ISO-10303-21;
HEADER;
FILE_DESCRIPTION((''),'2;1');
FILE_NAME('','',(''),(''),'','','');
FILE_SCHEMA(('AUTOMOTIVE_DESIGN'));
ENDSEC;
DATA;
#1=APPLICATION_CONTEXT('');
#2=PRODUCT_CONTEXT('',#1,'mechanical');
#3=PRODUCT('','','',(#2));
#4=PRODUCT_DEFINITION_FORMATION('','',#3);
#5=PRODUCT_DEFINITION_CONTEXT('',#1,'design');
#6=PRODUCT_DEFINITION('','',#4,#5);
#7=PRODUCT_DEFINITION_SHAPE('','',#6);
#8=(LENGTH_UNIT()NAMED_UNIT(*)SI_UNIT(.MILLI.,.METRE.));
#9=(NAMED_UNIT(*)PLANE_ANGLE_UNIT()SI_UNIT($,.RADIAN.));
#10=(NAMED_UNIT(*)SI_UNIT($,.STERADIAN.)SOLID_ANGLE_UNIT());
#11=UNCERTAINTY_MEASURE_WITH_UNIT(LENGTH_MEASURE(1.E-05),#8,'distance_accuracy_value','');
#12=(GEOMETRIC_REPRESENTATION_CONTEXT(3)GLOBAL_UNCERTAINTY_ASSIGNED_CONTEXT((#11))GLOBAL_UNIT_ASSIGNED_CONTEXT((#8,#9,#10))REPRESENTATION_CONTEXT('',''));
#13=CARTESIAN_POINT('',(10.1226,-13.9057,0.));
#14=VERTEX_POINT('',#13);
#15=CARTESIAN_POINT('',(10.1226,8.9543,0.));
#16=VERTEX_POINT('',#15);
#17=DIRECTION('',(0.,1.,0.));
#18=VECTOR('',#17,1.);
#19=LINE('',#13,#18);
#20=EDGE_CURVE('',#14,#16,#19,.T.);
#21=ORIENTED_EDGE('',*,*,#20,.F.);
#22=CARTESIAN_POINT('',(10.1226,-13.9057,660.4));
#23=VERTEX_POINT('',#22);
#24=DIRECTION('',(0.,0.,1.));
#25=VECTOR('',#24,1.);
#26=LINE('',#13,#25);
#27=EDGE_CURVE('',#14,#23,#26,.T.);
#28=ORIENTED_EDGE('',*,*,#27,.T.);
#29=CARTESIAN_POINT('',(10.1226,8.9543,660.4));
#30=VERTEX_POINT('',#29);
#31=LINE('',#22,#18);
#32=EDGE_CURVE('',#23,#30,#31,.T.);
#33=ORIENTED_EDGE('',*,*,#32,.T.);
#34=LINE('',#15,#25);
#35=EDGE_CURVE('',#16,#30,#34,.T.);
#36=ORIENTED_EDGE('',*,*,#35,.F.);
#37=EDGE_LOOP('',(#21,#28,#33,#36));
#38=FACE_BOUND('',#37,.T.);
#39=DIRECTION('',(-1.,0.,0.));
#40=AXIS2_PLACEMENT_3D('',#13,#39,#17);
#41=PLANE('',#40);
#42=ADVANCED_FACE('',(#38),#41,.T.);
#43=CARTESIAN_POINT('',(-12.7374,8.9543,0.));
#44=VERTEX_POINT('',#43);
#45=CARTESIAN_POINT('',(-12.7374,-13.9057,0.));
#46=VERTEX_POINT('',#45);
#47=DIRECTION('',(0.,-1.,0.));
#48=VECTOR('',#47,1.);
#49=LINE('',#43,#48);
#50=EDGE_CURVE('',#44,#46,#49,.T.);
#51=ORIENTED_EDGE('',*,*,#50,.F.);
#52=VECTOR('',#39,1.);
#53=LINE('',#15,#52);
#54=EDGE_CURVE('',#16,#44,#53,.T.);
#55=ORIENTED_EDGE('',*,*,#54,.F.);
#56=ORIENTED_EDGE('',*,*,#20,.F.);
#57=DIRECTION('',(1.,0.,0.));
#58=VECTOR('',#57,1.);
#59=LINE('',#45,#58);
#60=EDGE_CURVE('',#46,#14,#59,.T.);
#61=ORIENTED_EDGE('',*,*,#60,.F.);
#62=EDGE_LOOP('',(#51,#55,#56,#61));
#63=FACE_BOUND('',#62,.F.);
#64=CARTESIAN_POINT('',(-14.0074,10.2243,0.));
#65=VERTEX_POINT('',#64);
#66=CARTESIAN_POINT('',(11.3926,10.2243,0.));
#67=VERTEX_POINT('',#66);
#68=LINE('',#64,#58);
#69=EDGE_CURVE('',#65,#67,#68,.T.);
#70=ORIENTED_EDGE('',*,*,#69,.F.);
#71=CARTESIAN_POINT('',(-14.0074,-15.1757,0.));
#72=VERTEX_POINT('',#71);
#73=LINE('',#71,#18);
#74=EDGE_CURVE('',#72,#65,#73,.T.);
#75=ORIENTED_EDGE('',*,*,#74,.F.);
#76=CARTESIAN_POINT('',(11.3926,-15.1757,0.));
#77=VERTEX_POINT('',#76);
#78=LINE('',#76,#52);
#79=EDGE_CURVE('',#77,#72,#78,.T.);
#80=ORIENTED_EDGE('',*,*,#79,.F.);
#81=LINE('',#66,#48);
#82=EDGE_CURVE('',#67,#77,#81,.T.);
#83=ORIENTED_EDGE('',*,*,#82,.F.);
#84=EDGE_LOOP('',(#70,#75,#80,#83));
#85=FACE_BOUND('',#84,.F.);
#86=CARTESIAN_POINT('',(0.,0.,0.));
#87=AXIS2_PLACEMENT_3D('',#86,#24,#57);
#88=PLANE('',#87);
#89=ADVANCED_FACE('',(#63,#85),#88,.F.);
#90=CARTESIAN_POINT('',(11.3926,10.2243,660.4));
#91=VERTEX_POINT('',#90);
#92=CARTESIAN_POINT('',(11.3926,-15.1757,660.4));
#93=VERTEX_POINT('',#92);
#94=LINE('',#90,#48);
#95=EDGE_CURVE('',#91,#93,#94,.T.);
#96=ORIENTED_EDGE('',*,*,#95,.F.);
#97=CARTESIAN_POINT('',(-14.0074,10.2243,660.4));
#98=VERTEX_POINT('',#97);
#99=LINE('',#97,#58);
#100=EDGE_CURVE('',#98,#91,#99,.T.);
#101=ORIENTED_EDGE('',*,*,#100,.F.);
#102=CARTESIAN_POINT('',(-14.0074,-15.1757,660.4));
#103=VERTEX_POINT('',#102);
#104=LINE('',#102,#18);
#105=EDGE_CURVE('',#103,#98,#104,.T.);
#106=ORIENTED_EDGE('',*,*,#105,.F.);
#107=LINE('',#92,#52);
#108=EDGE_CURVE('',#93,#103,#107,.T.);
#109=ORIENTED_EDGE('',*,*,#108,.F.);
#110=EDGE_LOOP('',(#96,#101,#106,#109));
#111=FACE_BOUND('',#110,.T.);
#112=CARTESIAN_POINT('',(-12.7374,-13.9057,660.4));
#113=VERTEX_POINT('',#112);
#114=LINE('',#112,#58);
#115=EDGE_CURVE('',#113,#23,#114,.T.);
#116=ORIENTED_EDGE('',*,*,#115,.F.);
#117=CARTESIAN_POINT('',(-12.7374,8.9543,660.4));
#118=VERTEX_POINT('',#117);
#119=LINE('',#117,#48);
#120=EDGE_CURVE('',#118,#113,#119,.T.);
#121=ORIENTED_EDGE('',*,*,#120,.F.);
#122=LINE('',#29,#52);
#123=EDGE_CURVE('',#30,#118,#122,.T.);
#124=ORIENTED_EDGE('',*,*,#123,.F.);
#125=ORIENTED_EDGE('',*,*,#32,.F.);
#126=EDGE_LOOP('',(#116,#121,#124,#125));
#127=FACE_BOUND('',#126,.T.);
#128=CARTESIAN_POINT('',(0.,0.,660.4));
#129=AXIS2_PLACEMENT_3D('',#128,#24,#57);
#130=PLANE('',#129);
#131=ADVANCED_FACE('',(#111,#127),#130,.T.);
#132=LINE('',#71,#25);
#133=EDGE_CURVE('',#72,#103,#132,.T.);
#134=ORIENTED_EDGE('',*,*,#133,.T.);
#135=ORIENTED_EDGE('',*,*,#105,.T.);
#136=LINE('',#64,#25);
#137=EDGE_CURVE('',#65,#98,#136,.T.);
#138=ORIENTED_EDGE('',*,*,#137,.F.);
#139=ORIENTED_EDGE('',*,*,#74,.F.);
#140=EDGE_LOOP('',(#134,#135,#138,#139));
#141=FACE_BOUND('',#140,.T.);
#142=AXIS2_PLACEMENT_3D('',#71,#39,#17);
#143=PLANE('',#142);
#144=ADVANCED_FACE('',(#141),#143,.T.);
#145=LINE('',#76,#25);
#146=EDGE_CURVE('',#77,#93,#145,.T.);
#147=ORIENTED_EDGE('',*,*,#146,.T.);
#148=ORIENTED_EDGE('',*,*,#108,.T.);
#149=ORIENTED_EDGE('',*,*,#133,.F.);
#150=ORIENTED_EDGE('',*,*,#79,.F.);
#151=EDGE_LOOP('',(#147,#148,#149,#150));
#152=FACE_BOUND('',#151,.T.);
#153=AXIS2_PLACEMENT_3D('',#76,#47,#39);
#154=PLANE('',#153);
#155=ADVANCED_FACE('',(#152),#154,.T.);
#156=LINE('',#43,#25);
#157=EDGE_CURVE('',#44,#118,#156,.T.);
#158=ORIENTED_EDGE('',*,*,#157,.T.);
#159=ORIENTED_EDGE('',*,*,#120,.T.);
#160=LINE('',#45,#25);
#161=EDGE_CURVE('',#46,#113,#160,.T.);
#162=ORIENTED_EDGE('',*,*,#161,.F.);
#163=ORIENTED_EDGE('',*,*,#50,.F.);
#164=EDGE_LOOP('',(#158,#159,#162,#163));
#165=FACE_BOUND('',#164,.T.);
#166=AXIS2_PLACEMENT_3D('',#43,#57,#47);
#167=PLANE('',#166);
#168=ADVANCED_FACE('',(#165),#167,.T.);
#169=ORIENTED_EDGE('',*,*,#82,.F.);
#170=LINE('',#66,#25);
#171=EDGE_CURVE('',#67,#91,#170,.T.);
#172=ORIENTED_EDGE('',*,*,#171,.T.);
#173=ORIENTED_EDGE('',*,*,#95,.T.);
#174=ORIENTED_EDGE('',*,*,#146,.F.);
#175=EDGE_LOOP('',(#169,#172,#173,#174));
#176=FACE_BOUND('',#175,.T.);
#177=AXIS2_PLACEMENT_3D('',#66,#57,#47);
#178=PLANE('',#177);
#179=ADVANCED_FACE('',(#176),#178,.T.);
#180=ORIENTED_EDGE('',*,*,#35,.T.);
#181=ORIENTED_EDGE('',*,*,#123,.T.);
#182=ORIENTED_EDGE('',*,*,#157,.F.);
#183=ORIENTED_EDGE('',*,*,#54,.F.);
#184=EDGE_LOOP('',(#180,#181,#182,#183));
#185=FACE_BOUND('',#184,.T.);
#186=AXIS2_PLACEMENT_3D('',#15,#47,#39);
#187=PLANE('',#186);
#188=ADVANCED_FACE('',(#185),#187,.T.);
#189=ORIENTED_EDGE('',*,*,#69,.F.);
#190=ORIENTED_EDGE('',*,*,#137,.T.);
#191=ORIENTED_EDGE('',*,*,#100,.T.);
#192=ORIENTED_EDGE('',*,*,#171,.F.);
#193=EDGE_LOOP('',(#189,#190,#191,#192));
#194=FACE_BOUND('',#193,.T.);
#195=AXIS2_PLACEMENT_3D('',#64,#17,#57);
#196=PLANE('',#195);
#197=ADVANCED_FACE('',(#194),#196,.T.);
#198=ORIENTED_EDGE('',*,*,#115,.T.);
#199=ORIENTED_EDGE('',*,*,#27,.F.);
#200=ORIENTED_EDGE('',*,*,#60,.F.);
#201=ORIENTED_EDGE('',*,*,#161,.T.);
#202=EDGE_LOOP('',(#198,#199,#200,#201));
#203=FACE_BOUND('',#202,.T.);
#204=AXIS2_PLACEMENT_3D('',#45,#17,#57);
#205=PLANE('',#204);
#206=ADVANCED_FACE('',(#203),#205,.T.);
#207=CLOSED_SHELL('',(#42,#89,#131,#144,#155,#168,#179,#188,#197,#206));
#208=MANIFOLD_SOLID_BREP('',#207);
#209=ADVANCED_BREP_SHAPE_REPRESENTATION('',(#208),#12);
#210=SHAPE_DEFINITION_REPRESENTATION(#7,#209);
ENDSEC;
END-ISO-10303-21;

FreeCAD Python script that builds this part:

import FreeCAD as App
import Part
import Sketcher
Q = App.Units.Quantity

doc = App.newDocument("Part")
body = doc.addObject("PartDesign::Body", "Body")

sketch1 = body.newObject("Sketcher::SketchObject", "Sketch")
sketch1.AttachmentSupport = (doc.getObject("XY_Plane"), [""])
sketch1.MapMode = "FlatFace"
sketch1.addGeometry(Part.LineSegment(App.Vector(11.3926, 10.2243, 0), App.Vector(-14.0074, 10.2243, 0)), False)
sketch1.addGeometry(Part.LineSegment(App.Vector(-14.0074, 10.2243, 0), App.Vector(-14.0074, -15.1757, 0)), False)
sketch1.addGeometry(Part.LineSegment(App.Vector(-14.0074, -15.1757, 0), App.Vector(11.3926, -15.1757, 0)), False)
sketch1.addGeometry(Part.LineSegment(App.Vector(11.3926, -15.1757, 0), App.Vector(11.3926, 10.2243, 0)), False)
sketch1.addGeometry(Part.LineSegment(App.Vector(-12.7374, 8.9543, 0), App.Vector(10.1226, 8.9543, 0)), False)
sketch1.addGeometry(Part.LineSegment(App.Vector(10.1226, 8.9543, 0), App.Vector(10.1226, -13.9057, 0)), False)
sketch1.addGeometry(Part.LineSegment(App.Vector(10.1226, -13.9057, 0), App.Vector(-12.7374, -13.9057, 0)), False)
sketch1.addGeometry(Part.LineSegment(App.Vector(-12.7374, -13.9057, 0), App.Vector(-12.7374, 8.9543, 0)), False)
sketch1.addConstraint(Sketcher.Constraint("Coincident", 0, 2, 1, 1))
sketch1.addConstraint(Sketcher.Constraint("Coincident", 1, 2, 2, 1))
sketch1.addConstraint(Sketcher.Constraint("Coincident", 2, 2, 3, 1))
sketch1.addConstraint(Sketcher.Constraint("Coincident", 3, 2, 0, 1))
sketch1.addConstraint(Sketcher.Constraint("Coincident", 4, 2, 5, 1))
sketch1.addConstraint(Sketcher.Constraint("Coincident", 5, 2, 6, 1))
sketch1.addConstraint(Sketcher.Constraint("Coincident", 6, 2, 7, 1))
sketch1.addConstraint(Sketcher.Constraint("Coincident", 7, 2, 4, 1))
sketch1.addConstraint(Sketcher.Constraint("Horizontal", 0))
sketch1.addConstraint(Sketcher.Constraint("Vertical", 1))
sketch1.addConstraint(Sketcher.Constraint("Horizontal", 2))
sketch1.addConstraint(Sketcher.Constraint("Vertical", 3))
sketch1.addConstraint(Sketcher.Constraint("Horizontal", 4))
sketch1.addConstraint(Sketcher.Constraint("Vertical", 5))
sketch1.addConstraint(Sketcher.Constraint("Horizontal", 6))
sketch1.addConstraint(Sketcher.Constraint("Vertical", 7))
sketch1.addConstraint(Sketcher.Constraint("Equal", 2, 1))
sketch1.addConstraint(Sketcher.Constraint("Equal", 6, 5))
sketch1.addConstraint(Sketcher.Constraint("DistanceX", 0, 2, 0, 1, Q("1 in")))
sketch1.addConstraint(Sketcher.Constraint("DistanceX", 4, 2, 3, 2, Q("0.05 in")))
sketch1.addConstraint(Sketcher.Constraint("DistanceY", 4, 2, 3, 2, Q("0.05 in")))
sketch1.addConstraint(Sketcher.Constraint("DistanceY", 2, 2, 5, 2, Q("0.05 in")))
sketch1.addConstraint(Sketcher.Constraint("DistanceX", 0, 2, -1, 1, 14.0074))
sketch1.addConstraint(Sketcher.Constraint("DistanceY", -1, 1, 0, 2, 10.2243))
pad1 = body.newObject("PartDesign::Pad", "Pad")
pad1.Profile = sketch1
pad1.Length = Q("26 in")

doc.recompute()
